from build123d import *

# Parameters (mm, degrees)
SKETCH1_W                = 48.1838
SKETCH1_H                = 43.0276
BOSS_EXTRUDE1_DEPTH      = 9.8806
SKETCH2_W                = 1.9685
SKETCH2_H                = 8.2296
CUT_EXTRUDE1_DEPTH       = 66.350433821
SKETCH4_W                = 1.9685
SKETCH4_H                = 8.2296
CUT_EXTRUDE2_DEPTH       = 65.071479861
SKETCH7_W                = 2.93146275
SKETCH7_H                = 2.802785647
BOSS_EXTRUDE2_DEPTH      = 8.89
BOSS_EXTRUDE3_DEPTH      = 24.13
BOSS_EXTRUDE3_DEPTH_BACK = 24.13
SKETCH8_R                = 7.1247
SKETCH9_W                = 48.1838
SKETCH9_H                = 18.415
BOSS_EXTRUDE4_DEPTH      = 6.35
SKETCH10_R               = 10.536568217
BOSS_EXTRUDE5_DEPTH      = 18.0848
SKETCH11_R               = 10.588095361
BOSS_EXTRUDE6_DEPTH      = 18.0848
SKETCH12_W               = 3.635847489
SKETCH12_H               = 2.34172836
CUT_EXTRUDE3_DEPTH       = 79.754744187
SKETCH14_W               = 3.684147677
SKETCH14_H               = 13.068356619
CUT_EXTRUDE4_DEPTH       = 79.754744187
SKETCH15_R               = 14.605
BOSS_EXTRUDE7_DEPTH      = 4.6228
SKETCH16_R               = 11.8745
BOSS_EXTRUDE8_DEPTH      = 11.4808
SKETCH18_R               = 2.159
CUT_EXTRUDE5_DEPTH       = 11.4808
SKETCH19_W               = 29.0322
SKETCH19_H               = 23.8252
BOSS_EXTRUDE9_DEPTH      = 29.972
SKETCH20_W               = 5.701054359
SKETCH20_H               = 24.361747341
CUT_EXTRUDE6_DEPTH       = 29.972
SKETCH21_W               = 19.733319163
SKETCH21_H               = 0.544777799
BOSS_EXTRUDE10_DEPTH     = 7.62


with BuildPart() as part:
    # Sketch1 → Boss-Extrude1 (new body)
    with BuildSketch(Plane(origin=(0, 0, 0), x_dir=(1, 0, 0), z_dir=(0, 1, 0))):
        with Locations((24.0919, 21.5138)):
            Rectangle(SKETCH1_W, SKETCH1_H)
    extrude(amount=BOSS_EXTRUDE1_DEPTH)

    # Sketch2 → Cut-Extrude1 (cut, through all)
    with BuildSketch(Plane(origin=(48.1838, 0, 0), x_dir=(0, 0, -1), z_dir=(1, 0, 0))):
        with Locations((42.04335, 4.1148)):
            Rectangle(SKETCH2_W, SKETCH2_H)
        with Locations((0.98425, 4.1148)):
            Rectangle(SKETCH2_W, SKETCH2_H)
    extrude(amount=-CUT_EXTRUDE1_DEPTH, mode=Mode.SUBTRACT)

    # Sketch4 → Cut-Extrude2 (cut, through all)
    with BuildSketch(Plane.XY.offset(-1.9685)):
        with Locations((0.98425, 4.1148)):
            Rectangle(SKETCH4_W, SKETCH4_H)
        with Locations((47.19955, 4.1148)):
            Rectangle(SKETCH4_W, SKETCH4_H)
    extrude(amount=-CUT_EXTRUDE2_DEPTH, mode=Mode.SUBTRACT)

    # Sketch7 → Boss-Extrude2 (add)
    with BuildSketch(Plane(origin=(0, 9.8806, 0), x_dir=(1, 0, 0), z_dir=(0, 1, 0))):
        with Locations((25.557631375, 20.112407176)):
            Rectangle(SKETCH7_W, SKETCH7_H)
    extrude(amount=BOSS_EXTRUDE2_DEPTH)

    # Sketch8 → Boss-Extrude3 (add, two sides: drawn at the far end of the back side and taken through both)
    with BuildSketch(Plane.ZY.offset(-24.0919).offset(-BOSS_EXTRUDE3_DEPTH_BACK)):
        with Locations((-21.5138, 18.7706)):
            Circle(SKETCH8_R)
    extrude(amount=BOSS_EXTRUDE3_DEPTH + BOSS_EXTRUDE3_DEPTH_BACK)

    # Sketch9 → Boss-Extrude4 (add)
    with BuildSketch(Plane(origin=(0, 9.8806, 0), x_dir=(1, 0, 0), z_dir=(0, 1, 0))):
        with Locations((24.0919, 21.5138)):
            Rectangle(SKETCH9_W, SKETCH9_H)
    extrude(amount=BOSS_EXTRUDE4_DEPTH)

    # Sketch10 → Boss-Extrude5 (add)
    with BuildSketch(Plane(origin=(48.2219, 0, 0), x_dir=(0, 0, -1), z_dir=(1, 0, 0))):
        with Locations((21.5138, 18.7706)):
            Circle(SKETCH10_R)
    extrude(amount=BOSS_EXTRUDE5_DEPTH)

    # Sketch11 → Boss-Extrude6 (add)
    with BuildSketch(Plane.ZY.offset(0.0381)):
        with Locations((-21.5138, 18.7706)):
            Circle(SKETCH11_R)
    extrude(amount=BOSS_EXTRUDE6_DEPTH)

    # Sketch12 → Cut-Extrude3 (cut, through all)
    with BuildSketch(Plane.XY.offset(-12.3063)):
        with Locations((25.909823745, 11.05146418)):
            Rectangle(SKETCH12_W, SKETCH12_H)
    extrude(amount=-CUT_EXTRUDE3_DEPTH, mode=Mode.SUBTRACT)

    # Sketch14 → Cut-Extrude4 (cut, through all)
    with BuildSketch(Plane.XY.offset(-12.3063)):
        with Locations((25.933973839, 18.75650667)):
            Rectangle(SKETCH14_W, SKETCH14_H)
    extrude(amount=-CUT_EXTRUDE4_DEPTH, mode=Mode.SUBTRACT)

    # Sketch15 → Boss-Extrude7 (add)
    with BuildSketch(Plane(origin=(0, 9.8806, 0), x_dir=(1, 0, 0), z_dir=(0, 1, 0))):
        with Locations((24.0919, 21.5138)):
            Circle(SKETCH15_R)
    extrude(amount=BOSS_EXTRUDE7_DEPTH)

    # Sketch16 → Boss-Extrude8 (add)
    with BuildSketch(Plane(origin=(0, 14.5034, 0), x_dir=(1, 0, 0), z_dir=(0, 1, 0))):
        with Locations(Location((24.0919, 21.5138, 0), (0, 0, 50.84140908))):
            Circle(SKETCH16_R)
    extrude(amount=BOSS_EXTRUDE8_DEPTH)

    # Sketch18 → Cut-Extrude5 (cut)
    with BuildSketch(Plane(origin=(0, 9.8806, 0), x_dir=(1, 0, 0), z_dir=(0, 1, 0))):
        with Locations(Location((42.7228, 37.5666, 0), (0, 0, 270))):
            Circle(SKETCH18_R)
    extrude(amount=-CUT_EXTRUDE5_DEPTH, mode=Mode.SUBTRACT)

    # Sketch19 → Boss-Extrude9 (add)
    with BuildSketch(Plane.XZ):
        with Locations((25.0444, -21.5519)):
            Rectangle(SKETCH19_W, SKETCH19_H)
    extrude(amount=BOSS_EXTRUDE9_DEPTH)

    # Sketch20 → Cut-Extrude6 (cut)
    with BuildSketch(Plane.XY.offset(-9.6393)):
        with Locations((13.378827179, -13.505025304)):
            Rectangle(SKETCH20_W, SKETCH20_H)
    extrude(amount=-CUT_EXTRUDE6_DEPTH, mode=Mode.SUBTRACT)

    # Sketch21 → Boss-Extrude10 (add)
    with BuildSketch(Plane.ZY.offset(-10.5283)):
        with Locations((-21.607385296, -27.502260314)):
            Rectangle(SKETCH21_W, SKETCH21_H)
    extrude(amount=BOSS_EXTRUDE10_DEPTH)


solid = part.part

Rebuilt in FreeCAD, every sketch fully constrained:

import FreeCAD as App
import Part
import Sketcher
Q = App.Units.Quantity


def add_polygon(sketch, points):
    """Adds a closed chain of lines whose ends are joined by coincident constraints."""
    first, n = sketch.GeometryCount, len(points)
    for a, b in zip(points, points[1:] + points[:1]):
        sketch.addGeometry(Part.LineSegment(App.Vector(*a, 0), App.Vector(*b, 0)), False)
    for i in range(n):
        sketch.addConstraint(Sketcher.Constraint("Coincident", first + i, 2, first + (i + 1) % n, 1))

doc = App.newDocument("Part")
body = doc.addObject("PartDesign::Body", "Body")

sketch1 = doc.addObject("Sketcher::SketchObject", "Sketch")
body.addObject(sketch1)
sketch1.AttachmentSupport = (doc.XZ_Plane, [""])
sketch1.MapMode = "FlatFace"
add_polygon(sketch1, [(0, -43), (0, 0), (48, 0), (48, -43)])
sketch1.addConstraint([
    Sketcher.Constraint("Vertical", 0),
    Sketcher.Constraint("Horizontal", 1),
    Sketcher.Constraint("Vertical", 2),
    Sketcher.Constraint("Horizontal", 3),
    Sketcher.Constraint("Coincident", 0, 2, -1, 1),
    Sketcher.Constraint("DistanceX", 1, 1, 1, 2, Q("1.897 in")),
    Sketcher.Constraint("DistanceY", 0, 1, 0, 2, Q("1.694 in")),
])
pad1 = doc.addObject("PartDesign::Pad", "Pad")
body.addObject(pad1)
pad1.Profile = sketch1
pad1.Length = Q("0.389 in")
pad1.Reversed = True

sketch2 = doc.addObject("Sketcher::SketchObject", "Sketch001")
body.addObject(sketch2)
sketch2.AttachmentSupport = (doc.YZ_Plane, [""])
sketch2.MapMode = "FlatFace"
sketch2.AttachmentOffset = App.Placement(App.Vector(0, 0, 1.897 * 25.4), App.Rotation())
add_polygon(sketch2, [(8.2, -41.1), (0, -41.1), (0, -43), (8.2, -43)])
add_polygon(sketch2, [(8.2, 0), (0, 0), (0, -2), (8.2, -2)])
sketch2.addConstraint([
    Sketcher.Constraint("Horizontal", 0),
    Sketcher.Constraint("Vertical", 1),
    Sketcher.Constraint("Horizontal", 2),
    Sketcher.Constraint("Vertical", 3),
    Sketcher.Constraint("Horizontal", 4),
    Sketcher.Constraint("Vertical", 5),
    Sketcher.Constraint("Horizontal", 6),
    Sketcher.Constraint("Vertical", 7),
    Sketcher.Constraint("Coincident", 4, 2, -1, 1),
    Sketcher.Constraint("PointOnObject", 0, 2, -2),
    Sketcher.Constraint("Vertical", 3, 2, 6, 2),
    Sketcher.Constraint("Equal", 3, 5),
    Sketcher.Constraint("DistanceX", 0, 2, 0, 1, Q("0.324 in")),
    Sketcher.Constraint("DistanceY", 1, 2, 1, 1, Q("0.0775 in")),
    Sketcher.Constraint("DistanceY", 1, 2, -1, 1, Q("1.694 in")),
])
pocket1 = doc.addObject("PartDesign::Pocket", "Pocket")
body.addObject(pocket1)
pocket1.Profile = sketch2
pocket1.Type = "ThroughAll"

sketch3 = doc.addObject("Sketcher::SketchObject", "Sketch002")
body.addObject(sketch3)
sketch3.AttachmentSupport = (doc.XY_Plane, [""])
sketch3.MapMode = "FlatFace"
sketch3.AttachmentOffset = App.Placement(App.Vector(0, 0, -0.0775 * 25.4), App.Rotation())
add_polygon(sketch3, [(0, 8.2), (0, 0), (2, 0), (2, 8.2)])
add_polygon(sketch3, [(46.2, 8.2), (46.2, 0), (48.2, 0), (48.2, 8.2)])
sketch3.addConstraint([
    Sketcher.Constraint("Vertical", 0),
    Sketcher.Constraint("Horizontal", 1),
    Sketcher.Constraint("Vertical", 2),
    Sketcher.Constraint("Horizontal", 3),
    Sketcher.Constraint("Vertical", 4),
    Sketcher.Constraint("Horizontal", 5),
    Sketcher.Constraint("Vertical", 6),
    Sketcher.Constraint("Horizontal", 7),
    Sketcher.Constraint("Coincident", 0, 2, -1, 1),
    Sketcher.Constraint("PointOnObject", 4, 2, -1),
    Sketcher.Constraint("Horizontal", 3, 2, 6, 2),
    Sketcher.Constraint("Equal", 3, 5),
    Sketcher.Constraint("DistanceY", 0, 2, 0, 1, Q("0.324 in")),
    Sketcher.Constraint("DistanceX", 1, 1, 1, 2, Q("0.0775 in")),
    Sketcher.Constraint("DistanceX", -1, 1, 5, 2, Q("1.897 in")),
])
pocket2 = doc.addObject("PartDesign::Pocket", "Pocket001")
body.addObject(pocket2)
pocket2.Profile = sketch3
pocket2.Type = "ThroughAll"

sketch4 = doc.addObject("Sketcher::SketchObject", "Sketch003")
body.addObject(sketch4)
sketch4.AttachmentSupport = (doc.XZ_Plane, [""])
sketch4.MapMode = "FlatFace"
sketch4.AttachmentOffset = App.Placement(App.Vector(0, 0, -0.389 * 25.4), App.Rotation())
add_polygon(sketch4, [(24.1, -21.5), (24.1, -18.7), (27, -18.7), (27, -21.5)])
sketch4.addConstraint([
    Sketcher.Constraint("Vertical", 0),
    Sketcher.Constraint("Horizontal", 1),
    Sketcher.Constraint("Vertical", 2),
    Sketcher.Constraint("Horizontal", 3),
    Sketcher.Constraint("DistanceY", 2, 2, -1, 1, Q("0.847 in")),
    Sketcher.Constraint("DistanceX", -1, 1, 0, 2, Q("0.9485 in")),
    Sketcher.Constraint("DistanceX", 1, 1, 1, 2, 2.931463),
    Sketcher.Constraint("DistanceY", 0, 1, 0, 2, 2.802786),
])
pad2 = doc.addObject("PartDesign::Pad", "Pad001")
body.addObject(pad2)
pad2.Profile = sketch4
pad2.Length = Q("0.35 in")
pad2.Reversed = True

sketch5 = doc.addObject("Sketcher::SketchObject", "Sketch004")
body.addObject(sketch5)
sketch5.AttachmentSupport = (doc.YZ_Plane, [""])
sketch5.MapMode = "FlatFace"
sketch5.AttachmentOffset = App.Placement(App.Vector(0, 0, 0.9485 * 25.4), App.Rotation())
sketch5.addGeometry(Part.Circle(App.Vector(19, -22, 0), App.Vector(0, 0, 1), 7), False)
sketch5.addConstraint([
    Sketcher.Constraint("Diameter", 0, Q("0.561 in")),
    Sketcher.Constraint("DistanceX", -1, 1, 0, 3, Q("0.739 in")),
    Sketcher.Constraint("DistanceY", 0, 3, -1, 1, Q("0.847 in")),
])
pad3 = doc.addObject("PartDesign::Pad", "Pad002")
body.addObject(pad3)
pad3.Profile = sketch5
pad3.Type = "TwoLengths"
pad3.Length = Q("0.95 in")
pad3.Length2 = Q("0.95 in")
pad3.Reversed = True

sketch6 = doc.addObject("Sketcher::SketchObject", "Sketch005")
body.addObject(sketch6)
sketch6.AttachmentSupport = (doc.XZ_Plane, [""])
sketch6.MapMode = "FlatFace"
sketch6.AttachmentOffset = App.Placement(App.Vector(0, 0, -0.389 * 25.4), App.Rotation())
add_polygon(sketch6, [(0, -31), (0, -12), (48, -12), (48, -31)])
sketch6.addConstraint([
    Sketcher.Constraint("Vertical", 0),
    Sketcher.Constraint("Horizontal", 1),
    Sketcher.Constraint("Vertical", 2),
    Sketcher.Constraint("Horizontal", 3),
    Sketcher.Constraint("PointOnObject", 0, 2, -2),
    Sketcher.Constraint("DistanceX", 1, 1, 1, 2, Q("1.897 in")),
    Sketcher.Constraint("DistanceY", 0, 1, 0, 2, Q("0.725 in")),
    Sketcher.Constraint("DistanceY", 0, 2, -1, 1, Q("0.4845 in")),
])
pad4 = doc.addObject("PartDesign::Pad", "Pad003")
body.addObject(pad4)
pad4.Profile = sketch6
pad4.Length = Q("0.25 in")
pad4.Reversed = True

sketch7 = doc.addObject("Sketcher::SketchObject", "Sketch006")
body.addObject(sketch7)
sketch7.AttachmentSupport = (doc.YZ_Plane, [""])
sketch7.MapMode = "FlatFace"
sketch7.AttachmentOffset = App.Placement(App.Vector(0, 0, 1.8985 * 25.4), App.Rotation())
sketch7.addGeometry(Part.Circle(App.Vector(19, -22, 0), App.Vector(0, 0, 1), 11), False)
sketch7.addConstraint([
    Sketcher.Constraint("DistanceX", -1, 1, 0, 3, Q("0.739 in")),
    Sketcher.Constraint("DistanceY", 0, 3, -1, 1, Q("0.847 in")),
    Sketcher.Constraint("Diameter", 0, 21.073136),
])
pad5 = doc.addObject("PartDesign::Pad", "Pad004")
body.addObject(pad5)
pad5.Profile = sketch7
pad5.Length = Q("0.712 in")

sketch8 = doc.addObject("Sketcher::SketchObject", "Sketch007")
body.addObject(sketch8)
sketch8.AttachmentSupport = (doc.YZ_Plane, [""])
sketch8.MapMode = "FlatFace"
sketch8.AttachmentOffset = App.Placement(App.Vector(0, 0, -0.0015 * 25.4), App.Rotation())
sketch8.addGeometry(Part.Circle(App.Vector(19, -22, 0), App.Vector(0, 0, 1), 11), False)
sketch8.addConstraint([
    Sketcher.Constraint("Diameter", 0, 21.176191),
    Sketcher.Constraint("DistanceX", -1, 1, 0, 3, Q("0.739 in")),
    Sketcher.Constraint("DistanceY", 0, 3, -1, 1, Q("0.847 in")),
])
pad6 = doc.addObject("PartDesign::Pad", "Pad005")
body.addObject(pad6)
pad6.Profile = sketch8
pad6.Length = Q("0.712 in")
pad6.Reversed = True

sketch9 = doc.addObject("Sketcher::SketchObject", "Sketch008")
body.addObject(sketch9)
sketch9.AttachmentSupport = (doc.XY_Plane, [""])
sketch9.MapMode = "FlatFace"
sketch9.AttachmentOffset = App.Placement(App.Vector(0, 0, -0.4845 * 25.4), App.Rotation())
add_polygon(sketch9, [(24.1, 12.2), (24.1, 9.9), (27.7, 9.9), (27.7, 12.2)])
sketch9.addConstraint([
    Sketcher.Constraint("Vertical", 0),
    Sketcher.Constraint("Horizontal", 1),
    Sketcher.Constraint("Vertical", 2),
    Sketcher.Constraint("Horizontal", 3),
    Sketcher.Constraint("DistanceY", -1, 1, 0, 2, Q("0.389 in")),
    Sketcher.Constraint("DistanceX", -1, 1, 0, 2, Q("0.9485 in")),
    Sketcher.Constraint("DistanceY", 0, 2, 0, 1, 2.341728),
    Sketcher.Constraint("DistanceX", 1, 1, 1, 2, 3.635847),
])
pocket3 = doc.addObject("PartDesign::Pocket", "Pocket002")
body.addObject(pocket3)
pocket3.Profile = sketch9
pocket3.Type = "ThroughAll"

sketch10 = doc.addObject("Sketcher::SketchObject", "Sketch009")
body.addObject(sketch10)
sketch10.AttachmentSupport = (doc.XY_Plane, [""])
sketch10.MapMode = "FlatFace"
sketch10.AttachmentOffset = App.Placement(App.Vector(0, 0, -0.4845 * 25.4), App.Rotation())
add_polygon(sketch10, [(24.1, 25.3), (24.1, 12.2), (27.8, 12.2), (27.8, 25.3)])
sketch10.addConstraint([
    Sketcher.Constraint("Vertical", 0),
    Sketcher.Constraint("Horizontal", 1),
    Sketcher.Constraint("Vertical", 2),
    Sketcher.Constraint("Horizontal", 3),
    Sketcher.Constraint("DistanceX", -1, 1, 0, 2, Q("0.9485 in")),
    Sketcher.Constraint("DistanceX", 1, 1, 1, 2, 3.684148),
    Sketcher.Constraint("DistanceY", 0, 2, 0, 1, 13.068357),
    Sketcher.Constraint("DistanceY", -1, 1, 0, 2, 12.222328),
])
pocket4 = doc.addObject("PartDesign::Pocket", "Pocket003")
body.addObject(pocket4)
pocket4.Profile = sketch10
pocket4.Type = "ThroughAll"

sketch11 = doc.addObject("Sketcher::SketchObject", "Sketch010")
body.addObject(sketch11)
sketch11.AttachmentSupport = (doc.XZ_Plane, [""])
sketch11.MapMode = "FlatFace"
sketch11.AttachmentOffset = App.Placement(App.Vector(0, 0, -0.389 * 25.4), App.Rotation())
sketch11.addGeometry(Part.Circle(App.Vector(24, -22, 0), App.Vector(0, 0, 1), 15), False)
sketch11.addConstraint([
    Sketcher.Constraint("Diameter", 0, Q("1.15 in")),
    Sketcher.Constraint("DistanceY", 0, 3, -1, 1, Q("0.847 in")),
    Sketcher.Constraint("DistanceX", -1, 1, 0, 3, Q("0.9485 in")),
])
pad7 = doc.addObject("PartDesign::Pad", "Pad006")
body.addObject(pad7)
pad7.Profile = sketch11
pad7.Length = Q("0.182 in")
pad7.Reversed = True

sketch12 = doc.addObject("Sketcher::SketchObject", "Sketch011")
body.addObject(sketch12)
sketch12.AttachmentSupport = (doc.XZ_Plane, [""])
sketch12.MapMode = "FlatFace"
sketch12.AttachmentOffset = App.Placement(App.Vector(0, 0, -0.571 * 25.4), App.Rotation())
sketch12.addGeometry(Part.Circle(App.Vector(24, -22, 0), App.Vector(0, 0, 1), 12), False)
sketch12.addConstraint([
    Sketcher.Constraint("Diameter", 0, Q("0.935 in")),
    Sketcher.Constraint("DistanceY", 0, 3, -1, 1, Q("0.847 in")),
    Sketcher.Constraint("DistanceX", -1, 1, 0, 3, Q("0.9485 in")),
])
pad8 = doc.addObject("PartDesign::Pad", "Pad007")
body.addObject(pad8)
pad8.Profile = sketch12
pad8.Length = Q("0.452 in")
pad8.Reversed = True

sketch13 = doc.addObject("Sketcher::SketchObject", "Sketch012")
body.addObject(sketch13)
sketch13.AttachmentSupport = (doc.XZ_Plane, [""])
sketch13.MapMode = "FlatFace"
sketch13.AttachmentOffset = App.Placement(App.Vector(0, 0, -0.389 * 25.4), App.Rotation())
sketch13.addGeometry(Part.Circle(App.Vector(42.7, -37.6, 0), App.Vector(0, 0, 1), 2.2), False)
sketch13.addConstraint([
    Sketcher.Constraint("Diameter", 0, Q("0.17 in")),
    Sketcher.Constraint("DistanceX", -1, 1, 0, 3, Q("1.682 in")),
    Sketcher.Constraint("DistanceY", 0, 3, -1, 1, Q("1.479 in")),
])
pocket5 = doc.addObject("PartDesign::Pocket", "Pocket004")
body.addObject(pocket5)
pocket5.Profile = sketch13
pocket5.Length = Q("0.452 in")
pocket5.Reversed = True

sketch14 = doc.addObject("Sketcher::SketchObject", "Sketch013")
body.addObject(sketch14)
sketch14.AttachmentSupport = (doc.XZ_Plane, [""])
sketch14.MapMode = "FlatFace"
add_polygon(sketch14, [(11, -10), (11, -33), (40, -33), (40, -10)])
sketch14.addConstraint([
    Sketcher.Constraint("Vertical", 0),
    Sketcher.Constraint("Horizontal", 1),
    Sketcher.Constraint("Vertical", 2),
    Sketcher.Constraint("Horizontal", 3),
    Sketcher.Constraint("DistanceX", 1, 1, 1, 2, Q("1.143 in")),
    Sketcher.Constraint("DistanceY", 0, 2, 0, 1, Q("0.938 in")),
    Sketcher.Constraint("DistanceX", -1, 1, 0, 2, Q("0.4145 in")),
    Sketcher.Constraint("DistanceY", 0, 2, -1, 1, Q("1.3175 in")),
])
pad9 = doc.addObject("PartDesign::Pad", "Pad008")
body.addObject(pad9)
pad9.Profile = sketch14
pad9.Length = Q("1.18 in")

sketch15 = doc.addObject("Sketcher::SketchObject", "Sketch014")
body.addObject(sketch15)
sketch15.AttachmentSupport = (doc.XY_Plane, [""])
sketch15.MapMode = "FlatFace"
sketch15.AttachmentOffset = App.Placement(App.Vector(0, 0, -0.3795 * 25.4), App.Rotation())
add_polygon(sketch15, [(11, -1), (11, -26), (16, -26), (16, -1)])
sketch15.addConstraint([
    Sketcher.Constraint("Vertical", 0),
    Sketcher.Constraint("Horizontal", 1),
    Sketcher.Constraint("Vertical", 2),
    Sketcher.Constraint("Horizontal", 3),
    Sketcher.Constraint("DistanceX", -1, 1, 0, 2, Q("0.4145 in")),
    Sketcher.Constraint("DistanceY", 0, 2, -1, 1, 25.685899),
    Sketcher.Constraint("DistanceX", 1, 1, 1, 2, 5.701054),
    Sketcher.Constraint("DistanceY", 0, 2, 0, 1, 24.361747),
])
pocket6 = doc.addObject("PartDesign::Pocket", "Pocket005")
body.addObject(pocket6)
pocket6.Profile = sketch15
pocket6.Length = Q("1.18 in")

sketch16 = doc.addObject("Sketcher::SketchObject", "Sketch015")
body.addObject(sketch16)
sketch16.AttachmentSupport = (doc.YZ_Plane, [""])
sketch16.MapMode = "FlatFace"
sketch16.AttachmentOffset = App.Placement(App.Vector(0, 0, 0.4145 * 25.4), App.Rotation())
add_polygon(sketch16, [(-27.2, -31.5), (-27.8, -31.5), (-27.8, -11.7), (-27.2, -11.7)])
sketch16.addConstraint([
    Sketcher.Constraint("Horizontal", 0),
    Sketcher.Constraint("Vertical", 1),
    Sketcher.Constraint("Horizontal", 2),
    Sketcher.Constraint("Vertical", 3),
    Sketcher.Constraint("DistanceY", 1, 1, 1, 2, 19.733319),
    Sketcher.Constraint("DistanceX", 0, 2, 0, 1, 0.544778),
    Sketcher.Constraint("DistanceX", 0, 2, -1, 1, 27.774649),
    Sketcher.Constraint("DistanceY", 0, 2, -1, 1, 31.474045),
])
pad10 = doc.addObject("PartDesign::Pad", "Pad009")
body.addObject(pad10)
pad10.Profile = sketch16
pad10.Length = Q("0.3 in")
pad10.Reversed = True

doc.recompute()
